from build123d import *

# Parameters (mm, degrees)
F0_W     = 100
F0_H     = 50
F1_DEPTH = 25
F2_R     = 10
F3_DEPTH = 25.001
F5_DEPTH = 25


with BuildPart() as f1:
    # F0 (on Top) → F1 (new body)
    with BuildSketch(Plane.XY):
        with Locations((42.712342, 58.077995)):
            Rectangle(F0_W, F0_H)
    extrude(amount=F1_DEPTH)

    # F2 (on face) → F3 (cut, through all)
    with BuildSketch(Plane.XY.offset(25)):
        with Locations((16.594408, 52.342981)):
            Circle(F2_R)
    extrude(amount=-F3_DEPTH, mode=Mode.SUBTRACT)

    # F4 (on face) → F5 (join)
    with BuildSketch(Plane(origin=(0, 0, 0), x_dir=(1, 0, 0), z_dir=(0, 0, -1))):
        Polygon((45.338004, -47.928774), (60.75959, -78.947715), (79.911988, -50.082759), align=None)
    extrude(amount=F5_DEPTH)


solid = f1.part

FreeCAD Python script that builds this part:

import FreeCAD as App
import Part
import Sketcher
Q = App.Units.Quantity

doc = App.newDocument("Part")
params = doc.addObject("Spreadsheet::Sheet", "Params")
for row, (alias, value) in enumerate([
    ("sketch1_width", "100 mm"),
    ("sketch1_height", "50 mm"),
    ("pad1_length", "25 mm"),
    ("sketch2_diameter", "20 mm"),
    ("pad2_length", "25 mm"),
], start=1):
    params.set(f"A{row}", alias)
    params.set(f"B{row}", "=" + value)
    params.setAlias(f"B{row}", alias)

body = doc.addObject("PartDesign::Body", "Body")

# Sketch on XY plane
sketch1 = body.newObject("Sketcher::SketchObject", "Sketch")
sketch1.AttachmentSupport = (doc.getObject("XY_Plane"), [""])
sketch1.MapMode = "FlatFace"
sketch1.addGeometry(Part.LineSegment(App.Vector(-7, 83, 0), App.Vector(-7, 33, 0)), False)
sketch1.addGeometry(Part.LineSegment(App.Vector(-7, 33, 0), App.Vector(93, 33, 0)), False)
sketch1.addGeometry(Part.LineSegment(App.Vector(93, 33, 0), App.Vector(93, 83, 0)), False)
sketch1.addGeometry(Part.LineSegment(App.Vector(93, 83, 0), App.Vector(-7, 83, 0)), False)
sketch1.addConstraint(Sketcher.Constraint("Coincident", 0, 2, 1, 1))
sketch1.addConstraint(Sketcher.Constraint("Coincident", 1, 2, 2, 1))
sketch1.addConstraint(Sketcher.Constraint("Coincident", 2, 2, 3, 1))
sketch1.addConstraint(Sketcher.Constraint("Coincident", 3, 2, 0, 1))
sketch1.addConstraint(Sketcher.Constraint("Vertical", 0))
sketch1.addConstraint(Sketcher.Constraint("Horizontal", 1))
sketch1.addConstraint(Sketcher.Constraint("Vertical", 2))
sketch1.addConstraint(Sketcher.Constraint("Horizontal", 3))
sketch1.addConstraint(Sketcher.Constraint("DistanceX", 1, 1, 1, 2, Q("100 mm")))
sketch1.addConstraint(Sketcher.Constraint("DistanceY", 0, 2, 0, 1, Q("50 mm")))
sketch1.addConstraint(Sketcher.Constraint("DistanceX", 0, 2, -1, 1, Q("7.287658 mm")))
sketch1.addConstraint(Sketcher.Constraint("DistanceY", -1, 1, 0, 2, Q("33.077995 mm")))
sketch1.setExpression("Constraints[8]", "Params.sketch1_width")
sketch1.setExpression("Constraints[9]", "Params.sketch1_height")
pad1 = body.newObject("PartDesign::Pad", "Pad")
pad1.Profile = sketch1
pad1.setExpression("Length", "Params.pad1_length")

# Sketch on XY plane
sketch2 = body.newObject("Sketcher::SketchObject", "Sketch001")
sketch2.AttachmentSupport = (doc.getObject("XY_Plane"), [""])
sketch2.MapMode = "FlatFace"
sketch2.AttachmentOffset = App.Placement(App.Vector(0, 0, 25), App.Rotation())
sketch2.addGeometry(Part.Circle(App.Vector(17, 52, 0), App.Vector(0, 0, 1), 10), False)
sketch2.addConstraint(Sketcher.Constraint("Diameter", 0, Q("20 mm")))
sketch2.addConstraint(Sketcher.Constraint("DistanceX", -1, 1, 0, 3, Q("16.594408 mm")))
sketch2.addConstraint(Sketcher.Constraint("DistanceY", -1, 1, 0, 3, Q("52.342981 mm")))
sketch2.setExpression("Constraints[0]", "Params.sketch2_diameter")
pocket1 = body.newObject("PartDesign::Pocket", "Pocket")
pocket1.Profile = sketch2
pocket1.Type = "ThroughAll"

# Sketch on XY plane
sketch3 = body.newObject("Sketcher::SketchObject", "Sketch002")
sketch3.AttachmentSupport = (doc.getObject("XY_Plane"), [""])
sketch3.MapMode = "FlatFace"
sketch3.addGeometry(Part.LineSegment(App.Vector(45, 48, 0), App.Vector(61, 79, 0)), False)
sketch3.addGeometry(Part.LineSegment(App.Vector(61, 79, 0), App.Vector(80, 50, 0)), False)
sketch3.addGeometry(Part.LineSegment(App.Vector(80, 50, 0), App.Vector(45, 48, 0)), False)
sketch3.addConstraint(Sketcher.Constraint("Coincident", 0, 2, 1, 1))
sketch3.addConstraint(Sketcher.Constraint("Coincident", 1, 2, 2, 1))
sketch3.addConstraint(Sketcher.Constraint("Coincident", 2, 2, 0, 1))
sketch3.addConstraint(Sketcher.Constraint("Equal", 0, 1))
sketch3.addConstraint(Sketcher.Constraint("Equal", 1, 2))
sketch3.addConstraint(Sketcher.Constraint("DistanceX", -1, 1, 0, 2, Q("60.75959 mm")))
sketch3.addConstraint(Sketcher.Constraint("DistanceY", -1, 1, 1, 2, Q("50.082759 mm")))
sketch3.addConstraint(Sketcher.Constraint("DistanceY", 2, 2, 0, 2, Q("31.018941 mm")))
sketch3.addConstraint(Sketcher.Constraint("Distance", 0, Q("34.641016 mm")))
pad2 = body.newObject("PartDesign::Pad", "Pad001")
pad2.Profile = sketch3
pad2.setExpression("Length", "Params.pad2_length")
pad2.Reversed = True

doc.recompute()
